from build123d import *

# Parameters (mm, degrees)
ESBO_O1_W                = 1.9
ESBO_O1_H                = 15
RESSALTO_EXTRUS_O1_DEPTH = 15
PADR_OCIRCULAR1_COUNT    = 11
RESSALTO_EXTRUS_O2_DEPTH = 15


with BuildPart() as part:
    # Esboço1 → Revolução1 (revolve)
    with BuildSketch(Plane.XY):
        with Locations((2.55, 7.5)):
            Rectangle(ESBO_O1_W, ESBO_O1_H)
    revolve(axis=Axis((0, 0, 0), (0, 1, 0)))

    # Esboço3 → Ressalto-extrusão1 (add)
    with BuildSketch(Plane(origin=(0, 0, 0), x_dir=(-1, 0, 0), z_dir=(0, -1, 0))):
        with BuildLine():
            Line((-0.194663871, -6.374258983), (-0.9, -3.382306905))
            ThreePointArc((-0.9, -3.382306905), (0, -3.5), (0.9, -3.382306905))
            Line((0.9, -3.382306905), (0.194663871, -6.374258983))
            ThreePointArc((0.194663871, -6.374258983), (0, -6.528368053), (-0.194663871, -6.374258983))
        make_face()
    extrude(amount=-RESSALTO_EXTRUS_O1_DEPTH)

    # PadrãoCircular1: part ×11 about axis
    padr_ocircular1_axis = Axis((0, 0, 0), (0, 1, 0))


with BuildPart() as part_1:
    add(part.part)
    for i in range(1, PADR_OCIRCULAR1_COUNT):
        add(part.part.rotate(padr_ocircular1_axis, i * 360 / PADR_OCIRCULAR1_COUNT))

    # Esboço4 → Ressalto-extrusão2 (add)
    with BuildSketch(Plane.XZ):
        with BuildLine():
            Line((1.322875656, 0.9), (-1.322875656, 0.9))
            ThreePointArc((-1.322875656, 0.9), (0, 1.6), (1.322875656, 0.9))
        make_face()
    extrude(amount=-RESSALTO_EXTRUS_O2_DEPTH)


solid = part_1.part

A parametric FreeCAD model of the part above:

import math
import FreeCAD as App
import Part
import Sketcher
from FreeCAD import Vector


def add_polygon(sketch, points):
    """Adds a closed chain of lines whose ends are joined by coincident constraints."""
    first, n = sketch.GeometryCount, len(points)
    for a, b in zip(points, points[1:] + points[:1]):
        sketch.addGeometry(Part.LineSegment(App.Vector(*a, 0), App.Vector(*b, 0)), False)
    for i in range(n):
        sketch.addConstraint(Sketcher.Constraint("Coincident", first + i, 2, first + (i + 1) % n, 1))

doc = App.newDocument("Part")
params = doc.addObject("Spreadsheet::Sheet", "Params")
for row, (alias, value) in enumerate([
    ("sketch1_height", "15 mm"),
    ("sketch1_width", "1.9 mm"),
    ("revolution_angle", "360 deg"),
    ("sketch2_radius", "0.2 mm"),
    ("sketch2_radius2", "3.5 mm"),
    ("pad1_length", "15 mm"),
    ("sketch3_radius", "1.6 mm"),
    ("pad2_length", "15 mm"),
], start=1):
    params.set(f"A{row}", alias)
    params.set(f"B{row}", "=" + value)
    params.setAlias(f"B{row}", alias)

body = doc.addObject("PartDesign::Body", "Body")

# Sketch on XY plane
sketch1 = body.newObject("Sketcher::SketchObject", "Sketch")
sketch1.AttachmentSupport = (doc.getObject("XY_Plane"), [""])
sketch1.MapMode = "FlatFace"
add_polygon(sketch1, [(1.6, 15), (1.6, 0), (3.5, 0), (3.5, 15)])  # lines 0-3
sketch1.addConstraint([
    Sketcher.Constraint("Vertical", 0),
    Sketcher.Constraint("Horizontal", 1),
    Sketcher.Constraint("Vertical", 2),
    Sketcher.Constraint("Horizontal", 3),
    Sketcher.Constraint("PointOnObject", 0, 2, -1),
    Sketcher.Constraint("DistanceY", 0, 2, 0, 1, 15.0),
    Sketcher.Constraint("DistanceX", 1, 1, 1, 2, 1.9),
    Sketcher.Constraint("DistanceX", -1, 1, 0, 2, 1.6),
])
sketch1.setExpression("Constraints[9]", "Params.sketch1_height")
sketch1.setExpression("Constraints[10]", "Params.sketch1_width")
revolution = body.newObject("PartDesign::Revolution", "Revolution")
revolution.Profile = sketch1
revolution.ReferenceAxis = (sketch1, ["V_Axis"])
revolution.setExpression("Angle", "Params.revolution_angle")

# Sketch on XZ plane
sketch2 = body.newObject("Sketcher::SketchObject", "Sketch001")
sketch2.AttachmentSupport = (doc.getObject("XZ_Plane"), [""])
sketch2.MapMode = "FlatFace"
sketch2.addGeometry([
    Part.LineSegment(Vector(0.9, 3.38, 0), Vector(0.19, 6.37, 0)),
    Part.ArcOfCircle(Part.Circle(Vector(0, 6.33, 0), Vector(0, 0, 1), 0.2), math.radians(13), math.radians(167)),
    Part.LineSegment(Vector(-0.19, 6.37, 0), Vector(-0.9, 3.38, 0)),
    Part.ArcOfCircle(Part.Circle(Vector(0, 0, 0), Vector(0, 0, 1), 3.5), math.radians(75), math.radians(105)),
], False)
sketch2.addConstraint([
    Sketcher.Constraint("Tangent", 0, 2, 1, 1),
    Sketcher.Constraint("Tangent", 1, 2, 2, 1),
    Sketcher.Constraint("Coincident", 2, 2, 3, 2),
    Sketcher.Constraint("Coincident", 3, 1, 0, 1),
    Sketcher.Constraint("Coincident", 3, 3, -1, 1),
    Sketcher.Constraint("Symmetric", 0, 2, 1, 2, -2),
    Sketcher.Constraint("Radius", 1, 0.2),
    Sketcher.Constraint("Radius", 3, 3.5),
    Sketcher.Constraint("DistanceX", 2, 2, -1, 1, 0.9),
    Sketcher.Constraint("DistanceY", -1, 1, 1, 3, 6.328368),
])
sketch2.setExpression("Constraints[6]", "Params.sketch2_radius")
sketch2.setExpression("Constraints[7]", "Params.sketch2_radius2")
pad1 = body.newObject("PartDesign::Pad", "Pad")
pad1.Profile = sketch2
pad1.setExpression("Length", "Params.pad1_length")
pad1.Reversed = True
body2 = doc.addObject("PartDesign::Body", "Body001")
doc.recompute()

body2.BaseFeature = body
doc.recompute()

body3 = doc.addObject("PartDesign::Body", "Body002")
body3.BaseFeature = body
body3.Placement = App.Placement(Vector(0, 0, 0), App.Rotation(Vector(0, 1, 0), 32.727273))
boolean = body2.newObject("PartDesign::Boolean", "Boolean")
boolean.Type = "Fuse"
boolean.addObjects([body3])
doc.recompute()

body4 = doc.addObject("PartDesign::Body", "Body003")
body4.BaseFeature = body
body4.Placement = App.Placement(Vector(0, 0, 0), App.Rotation(Vector(0, 1, 0), 65.454545))
boolean2 = body2.newObject("PartDesign::Boolean", "Boolean001")
boolean2.Type = "Fuse"
boolean2.addObjects([body4])
doc.recompute()

body5 = doc.addObject("PartDesign::Body", "Body004")
body5.BaseFeature = body
body5.Placement = App.Placement(Vector(0, 0, 0), App.Rotation(Vector(0, 1, 0), 98.181818))
boolean3 = body2.newObject("PartDesign::Boolean", "Boolean002")
boolean3.Type = "Fuse"
boolean3.addObjects([body5])
doc.recompute()

body6 = doc.addObject("PartDesign::Body", "Body005")
body6.BaseFeature = body
body6.Placement = App.Placement(Vector(0, 0, 0), App.Rotation(Vector(0, 1, 0), 130.909091))
boolean4 = body2.newObject("PartDesign::Boolean", "Boolean003")
boolean4.Type = "Fuse"
boolean4.addObjects([body6])
doc.recompute()

body7 = doc.addObject("PartDesign::Body", "Body006")
body7.BaseFeature = body
body7.Placement = App.Placement(Vector(0, 0, 0), App.Rotation(Vector(0, 1, 0), 163.636364))
boolean5 = body2.newObject("PartDesign::Boolean", "Boolean004")
boolean5.Type = "Fuse"
boolean5.addObjects([body7])
doc.recompute()

body8 = doc.addObject("PartDesign::Body", "Body007")
body8.BaseFeature = body
body8.Placement = App.Placement(Vector(0, 0, 0), App.Rotation(Vector(0, 1, 0), 196.363636))
boolean6 = body2.newObject("PartDesign::Boolean", "Boolean005")
boolean6.Type = "Fuse"
boolean6.addObjects([body8])
doc.recompute()

body9 = doc.addObject("PartDesign::Body", "Body008")
body9.BaseFeature = body
body9.Placement = App.Placement(Vector(0, 0, 0), App.Rotation(Vector(0, 1, 0), 229.090909))
boolean7 = body2.newObject("PartDesign::Boolean", "Boolean006")
boolean7.Type = "Fuse"
boolean7.addObjects([body9])
doc.recompute()

body10 = doc.addObject("PartDesign::Body", "Body009")
body10.BaseFeature = body
body10.Placement = App.Placement(Vector(0, 0, 0), App.Rotation(Vector(0, 1, 0), 261.818182))
boolean8 = body2.newObject("PartDesign::Boolean", "Boolean007")
boolean8.Type = "Fuse"
boolean8.addObjects([body10])
doc.recompute()

body11 = doc.addObject("PartDesign::Body", "Body010")
body11.BaseFeature = body
body11.Placement = App.Placement(Vector(0, 0, 0), App.Rotation(Vector(0, 1, 0), 294.545455))
boolean9 = body2.newObject("PartDesign::Boolean", "Boolean008")
boolean9.Type = "Fuse"
boolean9.addObjects([body11])
doc.recompute()

body.Placement = App.Placement(Vector(0, 0, 0), App.Rotation(Vector(0, 1, 0), 327.272727))
boolean10 = body2.newObject("PartDesign::Boolean", "Boolean009")
boolean10.Type = "Fuse"
boolean10.addObjects([body])

# Sketch on XZ plane
sketch3 = body2.newObject("Sketcher::SketchObject", "Sketch002")
sketch3.AttachmentSupport = (doc.getObject("XZ_Plane001"), [""])
sketch3.MapMode = "FlatFace"
sketch3.addGeometry([
    Part.LineSegment(Vector(-1.3, 0.9, 0), Vector(1.3, 0.9, 0)),
    Part.ArcOfCircle(Part.Circle(Vector(0, 0, 0), Vector(0, 0, 1), 1.6), math.radians(34), math.radians(146)),
], False)
sketch3.addConstraint([
    Sketcher.Constraint("Coincident", 0, 1, 1, 2),
    Sketcher.Constraint("Coincident", 1, 1, 0, 2),
    Sketcher.Constraint("Horizontal", 0),
    Sketcher.Constraint("Coincident", 1, 3, -1, 1),
    Sketcher.Constraint("Radius", 1, 1.6),
    Sketcher.Constraint("DistanceY", -1, 1, 0, 1, 0.9),
])
sketch3.setExpression("Constraints[4]", "Params.sketch3_radius")
pad2 = body2.newObject("PartDesign::Pad", "Pad001")
pad2.Profile = sketch3
pad2.setExpression("Length", "Params.pad2_length")
pad2.Reversed = True

doc.recompute()
